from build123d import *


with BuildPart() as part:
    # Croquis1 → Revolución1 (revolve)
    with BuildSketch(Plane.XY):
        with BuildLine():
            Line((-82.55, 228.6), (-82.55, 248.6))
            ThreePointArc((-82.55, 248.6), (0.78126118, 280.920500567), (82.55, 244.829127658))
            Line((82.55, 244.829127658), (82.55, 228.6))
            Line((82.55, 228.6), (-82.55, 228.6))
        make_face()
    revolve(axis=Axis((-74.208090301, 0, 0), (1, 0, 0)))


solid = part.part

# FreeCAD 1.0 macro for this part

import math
import FreeCAD as App
import Part
import Sketcher

doc = App.newDocument("Part")
body = doc.addObject("PartDesign::Body", "Body")

sketch1 = body.newObject("Sketcher::SketchObject", "Sketch")
sketch1.AttachmentSupport = (doc.getObject("XY_Plane"), [""])
sketch1.MapMode = "FlatFace"
sketch1.addGeometry([
    Part.LineSegment(App.Vector(-83, 249, 0), App.Vector(-83, 229, 0)),
    Part.LineSegment(App.Vector(-83, 229, 0), App.Vector(83, 229, 0)),
    Part.LineSegment(App.Vector(83, 229, 0), App.Vector(83, 245, 0)),
    Part.ArcOfCircle(Part.Circle(App.Vector(-2, 164, 0), App.Vector(0, 0, 1), 117), math.radians(44), math.radians(134)),
], False)
sketch1.addConstraint([
    Sketcher.Constraint("Coincident", 0, 2, 1, 1),
    Sketcher.Constraint("Coincident", 1, 2, 2, 1),
    Sketcher.Constraint("Coincident", 2, 2, 3, 1),
    Sketcher.Constraint("Coincident", 3, 2, 0, 1),
    Sketcher.Constraint("Vertical", 0),
    Sketcher.Constraint("Horizontal", 1),
    Sketcher.Constraint("Vertical", 2),
    Sketcher.Constraint("DistanceY", 0, 2, 0, 1, 20.0),
    Sketcher.Constraint("DistanceX", 1, 1, 1, 2, 165.1),
    Sketcher.Constraint("DistanceY", -1, 1, 0, 2, 228.6),
    Sketcher.Constraint("DistanceX", 0, 2, -1, 1, 82.55),
    Sketcher.Constraint("Radius", 3, 116.743345),
    Sketcher.Constraint("DistanceY", 2, 1, 2, 2, 16.229128),
])
revolution = body.newObject("PartDesign::Revolution", "Revolution")
revolution.Profile = sketch1
revolution.ReferenceAxis = (sketch1, ["H_Axis"])
revolution.Angle = 360

doc.recompute()
